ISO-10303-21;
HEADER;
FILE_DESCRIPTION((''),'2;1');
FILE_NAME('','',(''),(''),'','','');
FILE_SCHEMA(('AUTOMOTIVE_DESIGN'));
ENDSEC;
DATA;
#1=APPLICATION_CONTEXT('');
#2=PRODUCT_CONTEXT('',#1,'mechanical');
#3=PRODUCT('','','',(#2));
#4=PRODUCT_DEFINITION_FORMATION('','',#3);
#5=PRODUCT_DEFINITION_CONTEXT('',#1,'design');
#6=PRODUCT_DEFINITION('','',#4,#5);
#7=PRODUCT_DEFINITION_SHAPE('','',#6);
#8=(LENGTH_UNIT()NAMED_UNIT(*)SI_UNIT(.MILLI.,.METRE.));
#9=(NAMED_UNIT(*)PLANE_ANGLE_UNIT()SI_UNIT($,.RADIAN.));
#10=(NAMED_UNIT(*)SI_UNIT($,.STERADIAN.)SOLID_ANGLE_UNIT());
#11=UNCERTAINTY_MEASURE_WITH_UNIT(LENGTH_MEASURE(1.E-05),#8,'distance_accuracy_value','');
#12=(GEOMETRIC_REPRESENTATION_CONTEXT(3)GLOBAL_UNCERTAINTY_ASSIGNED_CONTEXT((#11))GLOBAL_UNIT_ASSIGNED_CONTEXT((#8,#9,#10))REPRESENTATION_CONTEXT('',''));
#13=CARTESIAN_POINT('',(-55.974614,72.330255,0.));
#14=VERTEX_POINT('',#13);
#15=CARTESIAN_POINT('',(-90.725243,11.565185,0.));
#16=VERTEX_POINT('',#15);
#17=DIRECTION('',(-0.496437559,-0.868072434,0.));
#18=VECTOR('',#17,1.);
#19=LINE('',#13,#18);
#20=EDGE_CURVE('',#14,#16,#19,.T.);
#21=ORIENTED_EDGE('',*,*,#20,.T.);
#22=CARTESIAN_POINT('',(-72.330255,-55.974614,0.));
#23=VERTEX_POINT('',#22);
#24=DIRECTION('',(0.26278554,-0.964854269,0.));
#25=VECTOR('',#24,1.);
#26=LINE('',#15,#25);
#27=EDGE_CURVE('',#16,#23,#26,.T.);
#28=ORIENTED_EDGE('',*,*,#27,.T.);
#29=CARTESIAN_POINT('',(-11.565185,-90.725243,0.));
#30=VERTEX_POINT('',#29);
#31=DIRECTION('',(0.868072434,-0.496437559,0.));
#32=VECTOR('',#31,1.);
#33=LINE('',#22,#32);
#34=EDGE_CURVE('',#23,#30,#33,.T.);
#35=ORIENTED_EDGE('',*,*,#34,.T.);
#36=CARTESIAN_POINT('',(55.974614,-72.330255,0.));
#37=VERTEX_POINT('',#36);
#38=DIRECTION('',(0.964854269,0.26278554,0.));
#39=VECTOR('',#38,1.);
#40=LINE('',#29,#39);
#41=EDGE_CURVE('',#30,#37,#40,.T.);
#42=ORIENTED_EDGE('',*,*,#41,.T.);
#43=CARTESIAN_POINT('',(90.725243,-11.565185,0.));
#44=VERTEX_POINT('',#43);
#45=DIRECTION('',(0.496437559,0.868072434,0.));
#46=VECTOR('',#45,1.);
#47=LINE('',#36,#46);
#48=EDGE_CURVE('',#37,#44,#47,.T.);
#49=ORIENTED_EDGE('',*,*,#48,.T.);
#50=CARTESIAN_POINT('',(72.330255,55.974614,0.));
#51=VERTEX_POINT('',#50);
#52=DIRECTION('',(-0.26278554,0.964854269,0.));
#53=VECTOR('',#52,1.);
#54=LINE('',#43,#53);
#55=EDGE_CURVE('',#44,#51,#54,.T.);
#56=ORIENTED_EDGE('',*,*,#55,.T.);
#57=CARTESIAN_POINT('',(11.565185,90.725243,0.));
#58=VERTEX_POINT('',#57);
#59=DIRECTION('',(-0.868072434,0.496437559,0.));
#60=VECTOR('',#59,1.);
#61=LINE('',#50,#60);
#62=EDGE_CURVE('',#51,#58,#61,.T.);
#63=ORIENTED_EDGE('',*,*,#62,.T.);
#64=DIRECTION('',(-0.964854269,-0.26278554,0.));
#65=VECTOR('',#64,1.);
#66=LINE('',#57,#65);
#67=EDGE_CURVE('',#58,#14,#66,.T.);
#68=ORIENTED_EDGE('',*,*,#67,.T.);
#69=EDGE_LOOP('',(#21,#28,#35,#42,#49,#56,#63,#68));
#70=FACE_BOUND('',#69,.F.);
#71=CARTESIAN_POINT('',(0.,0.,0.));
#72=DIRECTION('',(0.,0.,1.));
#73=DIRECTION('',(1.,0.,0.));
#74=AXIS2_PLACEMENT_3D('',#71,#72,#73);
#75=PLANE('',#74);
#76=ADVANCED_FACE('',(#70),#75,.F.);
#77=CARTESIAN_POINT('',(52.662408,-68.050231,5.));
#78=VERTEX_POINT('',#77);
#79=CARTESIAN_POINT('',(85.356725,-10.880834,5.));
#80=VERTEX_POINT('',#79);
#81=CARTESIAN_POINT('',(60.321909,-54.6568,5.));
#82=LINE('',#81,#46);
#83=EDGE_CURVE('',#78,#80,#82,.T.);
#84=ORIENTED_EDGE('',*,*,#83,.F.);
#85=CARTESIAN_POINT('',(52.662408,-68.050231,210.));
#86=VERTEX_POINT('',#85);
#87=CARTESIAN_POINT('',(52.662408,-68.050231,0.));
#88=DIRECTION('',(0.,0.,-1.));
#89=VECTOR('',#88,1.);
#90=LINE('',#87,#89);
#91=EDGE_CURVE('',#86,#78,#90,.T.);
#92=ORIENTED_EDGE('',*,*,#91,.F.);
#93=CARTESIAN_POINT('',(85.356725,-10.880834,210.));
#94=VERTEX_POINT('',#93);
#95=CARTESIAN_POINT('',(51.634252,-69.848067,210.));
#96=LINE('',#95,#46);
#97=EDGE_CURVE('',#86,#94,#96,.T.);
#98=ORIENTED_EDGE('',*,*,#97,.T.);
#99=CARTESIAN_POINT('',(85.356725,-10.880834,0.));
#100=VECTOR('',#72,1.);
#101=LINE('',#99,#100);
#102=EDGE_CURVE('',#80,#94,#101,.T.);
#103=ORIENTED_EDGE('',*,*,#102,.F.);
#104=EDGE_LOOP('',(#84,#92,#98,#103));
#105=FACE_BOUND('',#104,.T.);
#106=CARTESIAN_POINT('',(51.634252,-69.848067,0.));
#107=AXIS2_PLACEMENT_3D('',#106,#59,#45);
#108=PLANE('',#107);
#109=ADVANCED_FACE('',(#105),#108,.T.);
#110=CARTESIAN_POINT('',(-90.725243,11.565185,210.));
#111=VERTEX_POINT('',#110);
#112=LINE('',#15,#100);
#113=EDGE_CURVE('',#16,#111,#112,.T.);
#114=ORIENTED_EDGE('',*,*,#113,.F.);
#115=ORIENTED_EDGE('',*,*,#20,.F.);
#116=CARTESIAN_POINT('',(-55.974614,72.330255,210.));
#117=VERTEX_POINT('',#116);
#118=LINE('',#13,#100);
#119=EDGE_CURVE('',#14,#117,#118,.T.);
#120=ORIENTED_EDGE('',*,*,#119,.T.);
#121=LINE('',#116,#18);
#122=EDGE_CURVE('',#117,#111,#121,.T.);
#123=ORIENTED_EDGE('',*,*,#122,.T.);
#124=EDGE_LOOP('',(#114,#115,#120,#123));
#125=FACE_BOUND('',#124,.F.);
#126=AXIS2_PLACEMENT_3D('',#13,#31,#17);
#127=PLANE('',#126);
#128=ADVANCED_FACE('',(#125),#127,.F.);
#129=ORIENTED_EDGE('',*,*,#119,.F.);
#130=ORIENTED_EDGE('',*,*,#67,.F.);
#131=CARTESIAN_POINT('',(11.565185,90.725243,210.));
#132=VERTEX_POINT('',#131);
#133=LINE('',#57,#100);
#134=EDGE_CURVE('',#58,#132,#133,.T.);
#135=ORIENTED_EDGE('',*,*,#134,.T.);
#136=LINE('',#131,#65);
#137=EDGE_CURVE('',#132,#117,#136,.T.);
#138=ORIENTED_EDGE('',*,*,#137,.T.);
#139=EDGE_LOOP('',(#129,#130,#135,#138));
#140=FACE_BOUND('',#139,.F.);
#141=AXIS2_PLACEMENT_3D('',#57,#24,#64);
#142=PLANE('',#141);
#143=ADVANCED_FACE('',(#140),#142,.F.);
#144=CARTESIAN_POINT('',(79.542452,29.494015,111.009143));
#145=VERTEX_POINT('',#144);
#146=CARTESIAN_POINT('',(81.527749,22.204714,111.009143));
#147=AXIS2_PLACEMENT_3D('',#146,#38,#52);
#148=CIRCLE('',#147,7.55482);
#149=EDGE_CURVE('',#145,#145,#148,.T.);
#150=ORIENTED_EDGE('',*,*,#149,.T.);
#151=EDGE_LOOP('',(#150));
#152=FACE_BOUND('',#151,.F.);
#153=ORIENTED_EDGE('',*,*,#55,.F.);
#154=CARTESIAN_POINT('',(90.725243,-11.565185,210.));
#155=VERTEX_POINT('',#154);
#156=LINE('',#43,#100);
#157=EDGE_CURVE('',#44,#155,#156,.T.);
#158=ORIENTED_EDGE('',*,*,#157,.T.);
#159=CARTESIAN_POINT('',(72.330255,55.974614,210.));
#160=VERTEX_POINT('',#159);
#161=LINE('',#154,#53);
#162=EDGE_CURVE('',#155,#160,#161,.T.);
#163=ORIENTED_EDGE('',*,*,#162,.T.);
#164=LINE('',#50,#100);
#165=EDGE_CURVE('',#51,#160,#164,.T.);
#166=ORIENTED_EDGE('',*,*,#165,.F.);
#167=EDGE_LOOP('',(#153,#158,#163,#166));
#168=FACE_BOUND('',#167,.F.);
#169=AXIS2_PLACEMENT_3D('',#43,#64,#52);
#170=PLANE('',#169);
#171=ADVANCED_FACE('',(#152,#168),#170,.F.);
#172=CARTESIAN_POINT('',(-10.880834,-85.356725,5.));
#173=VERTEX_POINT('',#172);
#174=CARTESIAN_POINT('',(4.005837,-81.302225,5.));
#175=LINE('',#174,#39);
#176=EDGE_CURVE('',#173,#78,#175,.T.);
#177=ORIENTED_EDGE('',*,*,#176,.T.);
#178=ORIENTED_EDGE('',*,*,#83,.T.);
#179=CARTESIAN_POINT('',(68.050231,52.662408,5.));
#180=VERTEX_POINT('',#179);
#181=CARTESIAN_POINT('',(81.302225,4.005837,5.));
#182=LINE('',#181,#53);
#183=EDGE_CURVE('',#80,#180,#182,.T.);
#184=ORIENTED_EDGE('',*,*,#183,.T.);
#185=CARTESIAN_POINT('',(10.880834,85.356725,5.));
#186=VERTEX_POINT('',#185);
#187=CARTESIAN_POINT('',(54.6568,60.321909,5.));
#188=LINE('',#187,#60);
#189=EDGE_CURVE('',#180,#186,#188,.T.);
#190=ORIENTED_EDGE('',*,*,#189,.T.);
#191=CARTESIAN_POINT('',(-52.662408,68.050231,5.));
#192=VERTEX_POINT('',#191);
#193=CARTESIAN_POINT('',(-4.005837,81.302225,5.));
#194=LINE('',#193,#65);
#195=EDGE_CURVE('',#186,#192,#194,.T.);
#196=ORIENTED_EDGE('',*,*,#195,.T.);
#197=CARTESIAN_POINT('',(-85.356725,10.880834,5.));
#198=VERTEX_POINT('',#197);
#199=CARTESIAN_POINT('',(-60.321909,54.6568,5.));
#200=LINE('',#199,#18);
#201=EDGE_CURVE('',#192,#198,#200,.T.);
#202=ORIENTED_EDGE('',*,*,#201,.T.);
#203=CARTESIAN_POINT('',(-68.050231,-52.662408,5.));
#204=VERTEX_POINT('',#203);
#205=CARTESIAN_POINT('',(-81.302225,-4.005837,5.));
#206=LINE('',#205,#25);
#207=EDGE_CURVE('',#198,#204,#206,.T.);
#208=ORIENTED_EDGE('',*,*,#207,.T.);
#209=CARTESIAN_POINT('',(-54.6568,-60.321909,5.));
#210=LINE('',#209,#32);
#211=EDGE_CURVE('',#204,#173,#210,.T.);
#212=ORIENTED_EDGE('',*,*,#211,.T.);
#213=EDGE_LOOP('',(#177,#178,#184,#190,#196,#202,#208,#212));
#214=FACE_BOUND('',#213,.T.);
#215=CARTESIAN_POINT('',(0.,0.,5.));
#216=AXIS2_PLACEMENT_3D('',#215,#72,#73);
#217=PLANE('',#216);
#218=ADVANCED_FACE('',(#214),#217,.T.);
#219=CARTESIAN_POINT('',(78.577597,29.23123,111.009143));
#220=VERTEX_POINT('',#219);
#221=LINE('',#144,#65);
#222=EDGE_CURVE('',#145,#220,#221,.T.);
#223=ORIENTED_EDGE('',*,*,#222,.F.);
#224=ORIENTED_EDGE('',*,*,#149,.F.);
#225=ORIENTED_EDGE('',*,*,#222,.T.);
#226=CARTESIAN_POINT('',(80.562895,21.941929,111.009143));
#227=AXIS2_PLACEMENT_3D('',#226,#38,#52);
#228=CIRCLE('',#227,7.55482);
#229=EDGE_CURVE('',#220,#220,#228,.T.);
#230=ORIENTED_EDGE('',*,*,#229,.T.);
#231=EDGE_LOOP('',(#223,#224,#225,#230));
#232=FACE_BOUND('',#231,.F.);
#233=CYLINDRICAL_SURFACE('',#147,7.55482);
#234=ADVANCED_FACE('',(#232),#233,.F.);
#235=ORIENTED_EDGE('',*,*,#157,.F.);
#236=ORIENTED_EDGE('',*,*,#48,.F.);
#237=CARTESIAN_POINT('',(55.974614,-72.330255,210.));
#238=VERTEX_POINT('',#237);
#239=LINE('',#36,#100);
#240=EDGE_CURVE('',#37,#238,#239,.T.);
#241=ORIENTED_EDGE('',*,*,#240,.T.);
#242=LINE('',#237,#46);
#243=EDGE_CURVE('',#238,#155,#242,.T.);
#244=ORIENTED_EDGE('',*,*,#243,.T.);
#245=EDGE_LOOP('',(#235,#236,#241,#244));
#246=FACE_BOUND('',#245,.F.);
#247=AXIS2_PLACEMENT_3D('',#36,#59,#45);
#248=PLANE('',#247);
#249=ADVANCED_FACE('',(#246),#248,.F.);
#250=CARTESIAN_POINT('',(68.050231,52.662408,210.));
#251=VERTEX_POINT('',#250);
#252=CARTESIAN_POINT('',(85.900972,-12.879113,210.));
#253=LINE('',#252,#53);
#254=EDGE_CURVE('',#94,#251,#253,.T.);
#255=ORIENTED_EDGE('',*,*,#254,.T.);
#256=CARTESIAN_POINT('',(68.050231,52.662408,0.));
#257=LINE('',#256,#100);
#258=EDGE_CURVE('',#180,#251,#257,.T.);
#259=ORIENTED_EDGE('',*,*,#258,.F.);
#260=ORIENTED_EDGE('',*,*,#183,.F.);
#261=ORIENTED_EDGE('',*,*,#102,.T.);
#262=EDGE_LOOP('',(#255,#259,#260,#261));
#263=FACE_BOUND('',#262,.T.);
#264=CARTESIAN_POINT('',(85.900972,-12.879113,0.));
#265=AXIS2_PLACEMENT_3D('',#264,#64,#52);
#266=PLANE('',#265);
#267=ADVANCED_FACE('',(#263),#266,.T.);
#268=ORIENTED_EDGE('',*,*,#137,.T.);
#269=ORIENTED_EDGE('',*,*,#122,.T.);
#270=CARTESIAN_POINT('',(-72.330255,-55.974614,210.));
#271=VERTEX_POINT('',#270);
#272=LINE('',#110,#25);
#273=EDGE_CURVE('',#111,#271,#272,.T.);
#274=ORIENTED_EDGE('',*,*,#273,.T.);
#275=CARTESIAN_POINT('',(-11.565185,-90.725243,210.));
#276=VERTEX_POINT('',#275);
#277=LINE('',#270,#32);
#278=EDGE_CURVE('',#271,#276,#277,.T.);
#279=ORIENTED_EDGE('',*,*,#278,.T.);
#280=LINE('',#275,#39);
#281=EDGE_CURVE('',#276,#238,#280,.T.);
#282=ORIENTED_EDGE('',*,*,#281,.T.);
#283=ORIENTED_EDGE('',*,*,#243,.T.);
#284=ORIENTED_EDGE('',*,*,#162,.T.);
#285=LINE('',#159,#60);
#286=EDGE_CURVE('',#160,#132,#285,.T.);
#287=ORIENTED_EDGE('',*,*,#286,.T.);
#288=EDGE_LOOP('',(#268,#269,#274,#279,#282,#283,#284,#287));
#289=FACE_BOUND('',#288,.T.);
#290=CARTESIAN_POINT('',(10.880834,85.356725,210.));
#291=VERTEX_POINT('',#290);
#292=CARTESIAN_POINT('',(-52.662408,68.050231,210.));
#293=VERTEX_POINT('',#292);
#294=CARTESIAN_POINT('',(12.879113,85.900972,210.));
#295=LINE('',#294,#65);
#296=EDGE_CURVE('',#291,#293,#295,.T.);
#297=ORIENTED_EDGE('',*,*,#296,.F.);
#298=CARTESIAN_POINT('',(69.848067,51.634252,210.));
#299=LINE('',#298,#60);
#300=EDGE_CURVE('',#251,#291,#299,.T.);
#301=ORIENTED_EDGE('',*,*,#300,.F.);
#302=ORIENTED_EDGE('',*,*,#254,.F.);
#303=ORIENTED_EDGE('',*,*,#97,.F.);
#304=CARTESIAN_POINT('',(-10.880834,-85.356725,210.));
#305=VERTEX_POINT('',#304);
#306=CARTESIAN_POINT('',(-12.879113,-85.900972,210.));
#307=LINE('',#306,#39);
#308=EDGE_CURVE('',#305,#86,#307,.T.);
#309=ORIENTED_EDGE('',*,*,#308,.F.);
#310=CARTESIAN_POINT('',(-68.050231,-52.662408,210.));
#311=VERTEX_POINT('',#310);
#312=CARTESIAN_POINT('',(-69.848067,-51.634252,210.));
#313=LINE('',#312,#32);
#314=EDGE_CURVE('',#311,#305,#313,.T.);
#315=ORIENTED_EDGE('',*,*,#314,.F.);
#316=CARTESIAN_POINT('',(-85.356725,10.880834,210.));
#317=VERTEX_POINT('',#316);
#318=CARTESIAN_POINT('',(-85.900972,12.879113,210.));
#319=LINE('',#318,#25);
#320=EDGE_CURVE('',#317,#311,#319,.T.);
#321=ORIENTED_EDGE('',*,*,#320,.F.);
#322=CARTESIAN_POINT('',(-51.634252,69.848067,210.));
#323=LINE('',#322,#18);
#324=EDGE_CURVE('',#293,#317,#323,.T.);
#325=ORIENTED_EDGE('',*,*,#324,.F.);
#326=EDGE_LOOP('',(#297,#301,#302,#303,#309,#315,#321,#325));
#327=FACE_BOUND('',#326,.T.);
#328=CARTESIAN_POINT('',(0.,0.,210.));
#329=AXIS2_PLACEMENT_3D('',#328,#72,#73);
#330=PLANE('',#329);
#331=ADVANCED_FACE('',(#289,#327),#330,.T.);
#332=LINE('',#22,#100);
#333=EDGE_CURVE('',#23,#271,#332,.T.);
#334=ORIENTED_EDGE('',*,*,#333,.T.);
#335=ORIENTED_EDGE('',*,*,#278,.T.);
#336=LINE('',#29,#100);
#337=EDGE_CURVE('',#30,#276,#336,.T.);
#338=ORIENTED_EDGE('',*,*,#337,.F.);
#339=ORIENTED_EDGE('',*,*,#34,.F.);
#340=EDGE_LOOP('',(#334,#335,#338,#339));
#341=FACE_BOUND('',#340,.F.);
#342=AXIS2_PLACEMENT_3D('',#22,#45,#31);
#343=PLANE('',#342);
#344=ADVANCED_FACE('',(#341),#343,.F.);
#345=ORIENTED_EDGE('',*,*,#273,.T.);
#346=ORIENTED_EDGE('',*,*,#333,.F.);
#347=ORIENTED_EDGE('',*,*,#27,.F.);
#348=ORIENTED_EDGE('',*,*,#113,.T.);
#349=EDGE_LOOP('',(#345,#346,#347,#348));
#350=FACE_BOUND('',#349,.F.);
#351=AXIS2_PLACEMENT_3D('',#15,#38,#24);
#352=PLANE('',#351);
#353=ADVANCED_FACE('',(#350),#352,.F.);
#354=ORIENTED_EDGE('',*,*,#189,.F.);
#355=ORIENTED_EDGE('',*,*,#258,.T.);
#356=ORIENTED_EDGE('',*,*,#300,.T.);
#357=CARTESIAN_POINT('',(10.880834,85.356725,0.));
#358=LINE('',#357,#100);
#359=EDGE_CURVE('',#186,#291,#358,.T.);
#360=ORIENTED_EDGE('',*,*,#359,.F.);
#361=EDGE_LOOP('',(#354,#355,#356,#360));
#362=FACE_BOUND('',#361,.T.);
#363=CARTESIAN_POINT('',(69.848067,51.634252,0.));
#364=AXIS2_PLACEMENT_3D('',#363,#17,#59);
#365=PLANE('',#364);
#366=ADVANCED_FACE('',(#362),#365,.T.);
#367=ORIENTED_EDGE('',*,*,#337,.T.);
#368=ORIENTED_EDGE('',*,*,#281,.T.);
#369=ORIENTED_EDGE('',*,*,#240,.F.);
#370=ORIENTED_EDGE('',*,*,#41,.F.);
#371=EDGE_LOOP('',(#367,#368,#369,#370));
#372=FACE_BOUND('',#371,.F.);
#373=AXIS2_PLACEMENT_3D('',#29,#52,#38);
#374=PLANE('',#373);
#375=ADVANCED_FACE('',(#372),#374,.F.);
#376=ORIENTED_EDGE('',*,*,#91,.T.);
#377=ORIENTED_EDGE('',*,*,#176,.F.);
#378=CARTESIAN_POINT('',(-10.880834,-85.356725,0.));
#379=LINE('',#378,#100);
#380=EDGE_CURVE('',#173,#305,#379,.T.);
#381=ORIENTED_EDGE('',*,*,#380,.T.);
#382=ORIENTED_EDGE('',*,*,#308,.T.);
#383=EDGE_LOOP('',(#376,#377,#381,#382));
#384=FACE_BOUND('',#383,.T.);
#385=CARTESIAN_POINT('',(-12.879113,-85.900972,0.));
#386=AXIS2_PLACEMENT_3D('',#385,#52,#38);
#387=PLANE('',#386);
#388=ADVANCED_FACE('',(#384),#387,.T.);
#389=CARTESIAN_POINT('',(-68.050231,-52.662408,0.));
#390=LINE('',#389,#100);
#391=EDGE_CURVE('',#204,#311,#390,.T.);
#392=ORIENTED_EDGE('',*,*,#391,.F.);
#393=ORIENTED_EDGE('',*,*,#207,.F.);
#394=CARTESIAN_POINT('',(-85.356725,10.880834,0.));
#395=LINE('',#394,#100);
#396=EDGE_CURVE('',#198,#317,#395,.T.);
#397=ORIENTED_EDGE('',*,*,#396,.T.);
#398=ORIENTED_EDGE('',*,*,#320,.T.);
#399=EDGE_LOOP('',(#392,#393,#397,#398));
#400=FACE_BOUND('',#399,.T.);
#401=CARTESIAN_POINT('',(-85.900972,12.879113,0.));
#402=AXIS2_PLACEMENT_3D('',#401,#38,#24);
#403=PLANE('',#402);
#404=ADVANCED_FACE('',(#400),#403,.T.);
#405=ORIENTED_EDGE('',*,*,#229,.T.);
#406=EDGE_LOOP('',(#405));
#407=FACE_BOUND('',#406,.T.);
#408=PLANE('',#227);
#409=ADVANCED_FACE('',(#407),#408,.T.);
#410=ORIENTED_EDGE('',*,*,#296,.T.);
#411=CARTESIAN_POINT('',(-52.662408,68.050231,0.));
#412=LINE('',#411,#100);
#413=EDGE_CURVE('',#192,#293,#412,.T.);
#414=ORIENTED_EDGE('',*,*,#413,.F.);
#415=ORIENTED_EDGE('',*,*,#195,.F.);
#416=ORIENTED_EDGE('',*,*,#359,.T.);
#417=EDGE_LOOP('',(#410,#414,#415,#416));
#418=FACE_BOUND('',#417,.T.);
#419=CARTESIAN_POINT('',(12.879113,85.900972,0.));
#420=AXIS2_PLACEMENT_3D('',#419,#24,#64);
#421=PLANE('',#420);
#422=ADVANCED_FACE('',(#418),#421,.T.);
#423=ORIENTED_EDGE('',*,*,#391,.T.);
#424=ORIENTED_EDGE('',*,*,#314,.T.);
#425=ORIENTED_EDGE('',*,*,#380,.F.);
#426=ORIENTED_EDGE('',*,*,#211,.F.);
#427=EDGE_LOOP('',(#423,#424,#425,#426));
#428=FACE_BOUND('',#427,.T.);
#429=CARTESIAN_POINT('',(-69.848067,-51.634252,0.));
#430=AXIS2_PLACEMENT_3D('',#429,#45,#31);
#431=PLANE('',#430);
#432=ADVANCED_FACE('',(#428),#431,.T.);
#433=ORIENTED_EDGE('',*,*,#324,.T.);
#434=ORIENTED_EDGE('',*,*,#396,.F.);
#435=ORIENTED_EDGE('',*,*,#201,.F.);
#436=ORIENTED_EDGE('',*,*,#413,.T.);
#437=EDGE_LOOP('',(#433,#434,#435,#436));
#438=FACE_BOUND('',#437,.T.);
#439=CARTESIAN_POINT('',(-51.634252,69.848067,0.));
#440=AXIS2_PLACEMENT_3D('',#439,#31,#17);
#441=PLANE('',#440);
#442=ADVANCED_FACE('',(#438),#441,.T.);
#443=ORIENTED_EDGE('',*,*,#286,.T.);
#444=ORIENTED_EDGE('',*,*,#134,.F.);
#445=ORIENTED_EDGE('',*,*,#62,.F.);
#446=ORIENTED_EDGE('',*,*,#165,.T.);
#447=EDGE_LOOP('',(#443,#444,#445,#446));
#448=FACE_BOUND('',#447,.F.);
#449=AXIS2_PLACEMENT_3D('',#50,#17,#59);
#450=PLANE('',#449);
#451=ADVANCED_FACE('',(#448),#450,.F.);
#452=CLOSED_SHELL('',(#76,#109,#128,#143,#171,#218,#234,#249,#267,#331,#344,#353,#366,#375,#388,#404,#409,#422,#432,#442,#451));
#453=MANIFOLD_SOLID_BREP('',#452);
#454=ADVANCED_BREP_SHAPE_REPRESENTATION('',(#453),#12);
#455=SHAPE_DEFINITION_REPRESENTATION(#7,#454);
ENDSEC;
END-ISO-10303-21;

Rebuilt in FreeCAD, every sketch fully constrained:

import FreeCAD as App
import Part
import Sketcher

V = App.Vector


def faces_at(feature, points):
    """Names of the faces that lie closest to the given points."""
    faces = feature.Shape.Faces
    near = lambda p: min(range(len(faces)), key=lambda i: faces[i].distToShape(Part.Vertex(*p))[0])
    return sorted({f"Face{near(p) + 1}" for p in points})

doc = App.newDocument("Part")
body = doc.addObject("PartDesign::Body", "Body")

sketch1 = doc.addObject("Sketcher::SketchObject", "Sketch")
body.addObject(sketch1)
sketch1.AttachmentSupport = (doc.XY_Plane, [""])
sketch1.MapMode = "FlatFace"
sketch1.addGeometry([
    Part.LineSegment(V(56, -72, 0), V(91, -12, 0)),
    Part.LineSegment(V(91, -12, 0), V(72, 56, 0)),
    Part.LineSegment(V(72, 56, 0), V(12, 91, 0)),
    Part.LineSegment(V(12, 91, 0), V(-56, 72, 0)),
    Part.LineSegment(V(-56, 72, 0), V(-91, 12, 0)),
    Part.LineSegment(V(-91, 12, 0), V(-72, -56, 0)),
    Part.LineSegment(V(-72, -56, 0), V(-12, -91, 0)),
    Part.LineSegment(V(-12, -91, 0), V(56, -72, 0)),
], False)
sketch1.addConstraint([
    Sketcher.Constraint("Coincident", 0, 2, 1, 1),
    Sketcher.Constraint("Coincident", 1, 2, 2, 1),
    Sketcher.Constraint("Coincident", 2, 2, 3, 1),
    Sketcher.Constraint("Coincident", 3, 2, 4, 1),
    Sketcher.Constraint("Coincident", 4, 2, 5, 1),
    Sketcher.Constraint("Coincident", 5, 2, 6, 1),
    Sketcher.Constraint("Coincident", 6, 2, 7, 1),
    Sketcher.Constraint("Coincident", 7, 2, 0, 1),
    Sketcher.Constraint("Symmetric", 0, 2, 4, 2, -1, 1),
    Sketcher.Constraint("Symmetric", 1, 2, 5, 2, -1, 1),
    Sketcher.Constraint("Symmetric", 2, 2, 6, 2, -1, 1),
    Sketcher.Constraint("Symmetric", 3, 2, 7, 2, -1, 1),
    Sketcher.Constraint("Perpendicular", 0, 2),
    Sketcher.Constraint("Perpendicular", 1, 3),
    Sketcher.Constraint("Equal", 0, 1),
    Sketcher.Constraint("Equal", 1, 2),
    Sketcher.Constraint("Equal", 2, 3),
    Sketcher.Constraint("Distance", 0, 70.0),
    Sketcher.Constraint("DistanceY", 0, 2, 1, 2, 67.539799),
    Sketcher.Constraint("DistanceX", 4, 2, 1, 2, 163.055498),
])
pad1 = doc.addObject("PartDesign::Pad", "Pad")
body.addObject(pad1)
pad1.Profile = sketch1
pad1.Length = 210
doc.recompute()

thickness = doc.addObject("PartDesign::Thickness", "Thickness")
body.addObject(thickness)
thickness.Base = (pad1, faces_at(pad1, [(0, 0, 210)]))
thickness.Value = 5
thickness.Reversed = True
thickness.Join = "Arc"

sketch2 = doc.addObject("Sketcher::SketchObject", "Sketch001")
body.addObject(sketch2)
sketch2.Placement = App.Placement(V(81.527749, 22.204714, 0), App.Rotation(V(-0.26278554, 0.964854269, 0), V(0, 0, 1), V(0.964854269, 0.26278554, 0), "ZXY"))
sketch2.addGeometry(Part.Circle(V(0, 111, 0), V(0, 0, 1), 8), False)
sketch2.addConstraint([
    Sketcher.Constraint("PointOnObject", 0, 3, -2),
    Sketcher.Constraint("Diameter", 0, 15.109641),
    Sketcher.Constraint("DistanceY", -1, 1, 0, 3, 111.009143),
])
pocket1 = doc.addObject("PartDesign::Pocket", "Pocket")
body.addObject(pocket1)
pocket1.Profile = sketch2
pocket1.Length = 1

doc.recompute()
